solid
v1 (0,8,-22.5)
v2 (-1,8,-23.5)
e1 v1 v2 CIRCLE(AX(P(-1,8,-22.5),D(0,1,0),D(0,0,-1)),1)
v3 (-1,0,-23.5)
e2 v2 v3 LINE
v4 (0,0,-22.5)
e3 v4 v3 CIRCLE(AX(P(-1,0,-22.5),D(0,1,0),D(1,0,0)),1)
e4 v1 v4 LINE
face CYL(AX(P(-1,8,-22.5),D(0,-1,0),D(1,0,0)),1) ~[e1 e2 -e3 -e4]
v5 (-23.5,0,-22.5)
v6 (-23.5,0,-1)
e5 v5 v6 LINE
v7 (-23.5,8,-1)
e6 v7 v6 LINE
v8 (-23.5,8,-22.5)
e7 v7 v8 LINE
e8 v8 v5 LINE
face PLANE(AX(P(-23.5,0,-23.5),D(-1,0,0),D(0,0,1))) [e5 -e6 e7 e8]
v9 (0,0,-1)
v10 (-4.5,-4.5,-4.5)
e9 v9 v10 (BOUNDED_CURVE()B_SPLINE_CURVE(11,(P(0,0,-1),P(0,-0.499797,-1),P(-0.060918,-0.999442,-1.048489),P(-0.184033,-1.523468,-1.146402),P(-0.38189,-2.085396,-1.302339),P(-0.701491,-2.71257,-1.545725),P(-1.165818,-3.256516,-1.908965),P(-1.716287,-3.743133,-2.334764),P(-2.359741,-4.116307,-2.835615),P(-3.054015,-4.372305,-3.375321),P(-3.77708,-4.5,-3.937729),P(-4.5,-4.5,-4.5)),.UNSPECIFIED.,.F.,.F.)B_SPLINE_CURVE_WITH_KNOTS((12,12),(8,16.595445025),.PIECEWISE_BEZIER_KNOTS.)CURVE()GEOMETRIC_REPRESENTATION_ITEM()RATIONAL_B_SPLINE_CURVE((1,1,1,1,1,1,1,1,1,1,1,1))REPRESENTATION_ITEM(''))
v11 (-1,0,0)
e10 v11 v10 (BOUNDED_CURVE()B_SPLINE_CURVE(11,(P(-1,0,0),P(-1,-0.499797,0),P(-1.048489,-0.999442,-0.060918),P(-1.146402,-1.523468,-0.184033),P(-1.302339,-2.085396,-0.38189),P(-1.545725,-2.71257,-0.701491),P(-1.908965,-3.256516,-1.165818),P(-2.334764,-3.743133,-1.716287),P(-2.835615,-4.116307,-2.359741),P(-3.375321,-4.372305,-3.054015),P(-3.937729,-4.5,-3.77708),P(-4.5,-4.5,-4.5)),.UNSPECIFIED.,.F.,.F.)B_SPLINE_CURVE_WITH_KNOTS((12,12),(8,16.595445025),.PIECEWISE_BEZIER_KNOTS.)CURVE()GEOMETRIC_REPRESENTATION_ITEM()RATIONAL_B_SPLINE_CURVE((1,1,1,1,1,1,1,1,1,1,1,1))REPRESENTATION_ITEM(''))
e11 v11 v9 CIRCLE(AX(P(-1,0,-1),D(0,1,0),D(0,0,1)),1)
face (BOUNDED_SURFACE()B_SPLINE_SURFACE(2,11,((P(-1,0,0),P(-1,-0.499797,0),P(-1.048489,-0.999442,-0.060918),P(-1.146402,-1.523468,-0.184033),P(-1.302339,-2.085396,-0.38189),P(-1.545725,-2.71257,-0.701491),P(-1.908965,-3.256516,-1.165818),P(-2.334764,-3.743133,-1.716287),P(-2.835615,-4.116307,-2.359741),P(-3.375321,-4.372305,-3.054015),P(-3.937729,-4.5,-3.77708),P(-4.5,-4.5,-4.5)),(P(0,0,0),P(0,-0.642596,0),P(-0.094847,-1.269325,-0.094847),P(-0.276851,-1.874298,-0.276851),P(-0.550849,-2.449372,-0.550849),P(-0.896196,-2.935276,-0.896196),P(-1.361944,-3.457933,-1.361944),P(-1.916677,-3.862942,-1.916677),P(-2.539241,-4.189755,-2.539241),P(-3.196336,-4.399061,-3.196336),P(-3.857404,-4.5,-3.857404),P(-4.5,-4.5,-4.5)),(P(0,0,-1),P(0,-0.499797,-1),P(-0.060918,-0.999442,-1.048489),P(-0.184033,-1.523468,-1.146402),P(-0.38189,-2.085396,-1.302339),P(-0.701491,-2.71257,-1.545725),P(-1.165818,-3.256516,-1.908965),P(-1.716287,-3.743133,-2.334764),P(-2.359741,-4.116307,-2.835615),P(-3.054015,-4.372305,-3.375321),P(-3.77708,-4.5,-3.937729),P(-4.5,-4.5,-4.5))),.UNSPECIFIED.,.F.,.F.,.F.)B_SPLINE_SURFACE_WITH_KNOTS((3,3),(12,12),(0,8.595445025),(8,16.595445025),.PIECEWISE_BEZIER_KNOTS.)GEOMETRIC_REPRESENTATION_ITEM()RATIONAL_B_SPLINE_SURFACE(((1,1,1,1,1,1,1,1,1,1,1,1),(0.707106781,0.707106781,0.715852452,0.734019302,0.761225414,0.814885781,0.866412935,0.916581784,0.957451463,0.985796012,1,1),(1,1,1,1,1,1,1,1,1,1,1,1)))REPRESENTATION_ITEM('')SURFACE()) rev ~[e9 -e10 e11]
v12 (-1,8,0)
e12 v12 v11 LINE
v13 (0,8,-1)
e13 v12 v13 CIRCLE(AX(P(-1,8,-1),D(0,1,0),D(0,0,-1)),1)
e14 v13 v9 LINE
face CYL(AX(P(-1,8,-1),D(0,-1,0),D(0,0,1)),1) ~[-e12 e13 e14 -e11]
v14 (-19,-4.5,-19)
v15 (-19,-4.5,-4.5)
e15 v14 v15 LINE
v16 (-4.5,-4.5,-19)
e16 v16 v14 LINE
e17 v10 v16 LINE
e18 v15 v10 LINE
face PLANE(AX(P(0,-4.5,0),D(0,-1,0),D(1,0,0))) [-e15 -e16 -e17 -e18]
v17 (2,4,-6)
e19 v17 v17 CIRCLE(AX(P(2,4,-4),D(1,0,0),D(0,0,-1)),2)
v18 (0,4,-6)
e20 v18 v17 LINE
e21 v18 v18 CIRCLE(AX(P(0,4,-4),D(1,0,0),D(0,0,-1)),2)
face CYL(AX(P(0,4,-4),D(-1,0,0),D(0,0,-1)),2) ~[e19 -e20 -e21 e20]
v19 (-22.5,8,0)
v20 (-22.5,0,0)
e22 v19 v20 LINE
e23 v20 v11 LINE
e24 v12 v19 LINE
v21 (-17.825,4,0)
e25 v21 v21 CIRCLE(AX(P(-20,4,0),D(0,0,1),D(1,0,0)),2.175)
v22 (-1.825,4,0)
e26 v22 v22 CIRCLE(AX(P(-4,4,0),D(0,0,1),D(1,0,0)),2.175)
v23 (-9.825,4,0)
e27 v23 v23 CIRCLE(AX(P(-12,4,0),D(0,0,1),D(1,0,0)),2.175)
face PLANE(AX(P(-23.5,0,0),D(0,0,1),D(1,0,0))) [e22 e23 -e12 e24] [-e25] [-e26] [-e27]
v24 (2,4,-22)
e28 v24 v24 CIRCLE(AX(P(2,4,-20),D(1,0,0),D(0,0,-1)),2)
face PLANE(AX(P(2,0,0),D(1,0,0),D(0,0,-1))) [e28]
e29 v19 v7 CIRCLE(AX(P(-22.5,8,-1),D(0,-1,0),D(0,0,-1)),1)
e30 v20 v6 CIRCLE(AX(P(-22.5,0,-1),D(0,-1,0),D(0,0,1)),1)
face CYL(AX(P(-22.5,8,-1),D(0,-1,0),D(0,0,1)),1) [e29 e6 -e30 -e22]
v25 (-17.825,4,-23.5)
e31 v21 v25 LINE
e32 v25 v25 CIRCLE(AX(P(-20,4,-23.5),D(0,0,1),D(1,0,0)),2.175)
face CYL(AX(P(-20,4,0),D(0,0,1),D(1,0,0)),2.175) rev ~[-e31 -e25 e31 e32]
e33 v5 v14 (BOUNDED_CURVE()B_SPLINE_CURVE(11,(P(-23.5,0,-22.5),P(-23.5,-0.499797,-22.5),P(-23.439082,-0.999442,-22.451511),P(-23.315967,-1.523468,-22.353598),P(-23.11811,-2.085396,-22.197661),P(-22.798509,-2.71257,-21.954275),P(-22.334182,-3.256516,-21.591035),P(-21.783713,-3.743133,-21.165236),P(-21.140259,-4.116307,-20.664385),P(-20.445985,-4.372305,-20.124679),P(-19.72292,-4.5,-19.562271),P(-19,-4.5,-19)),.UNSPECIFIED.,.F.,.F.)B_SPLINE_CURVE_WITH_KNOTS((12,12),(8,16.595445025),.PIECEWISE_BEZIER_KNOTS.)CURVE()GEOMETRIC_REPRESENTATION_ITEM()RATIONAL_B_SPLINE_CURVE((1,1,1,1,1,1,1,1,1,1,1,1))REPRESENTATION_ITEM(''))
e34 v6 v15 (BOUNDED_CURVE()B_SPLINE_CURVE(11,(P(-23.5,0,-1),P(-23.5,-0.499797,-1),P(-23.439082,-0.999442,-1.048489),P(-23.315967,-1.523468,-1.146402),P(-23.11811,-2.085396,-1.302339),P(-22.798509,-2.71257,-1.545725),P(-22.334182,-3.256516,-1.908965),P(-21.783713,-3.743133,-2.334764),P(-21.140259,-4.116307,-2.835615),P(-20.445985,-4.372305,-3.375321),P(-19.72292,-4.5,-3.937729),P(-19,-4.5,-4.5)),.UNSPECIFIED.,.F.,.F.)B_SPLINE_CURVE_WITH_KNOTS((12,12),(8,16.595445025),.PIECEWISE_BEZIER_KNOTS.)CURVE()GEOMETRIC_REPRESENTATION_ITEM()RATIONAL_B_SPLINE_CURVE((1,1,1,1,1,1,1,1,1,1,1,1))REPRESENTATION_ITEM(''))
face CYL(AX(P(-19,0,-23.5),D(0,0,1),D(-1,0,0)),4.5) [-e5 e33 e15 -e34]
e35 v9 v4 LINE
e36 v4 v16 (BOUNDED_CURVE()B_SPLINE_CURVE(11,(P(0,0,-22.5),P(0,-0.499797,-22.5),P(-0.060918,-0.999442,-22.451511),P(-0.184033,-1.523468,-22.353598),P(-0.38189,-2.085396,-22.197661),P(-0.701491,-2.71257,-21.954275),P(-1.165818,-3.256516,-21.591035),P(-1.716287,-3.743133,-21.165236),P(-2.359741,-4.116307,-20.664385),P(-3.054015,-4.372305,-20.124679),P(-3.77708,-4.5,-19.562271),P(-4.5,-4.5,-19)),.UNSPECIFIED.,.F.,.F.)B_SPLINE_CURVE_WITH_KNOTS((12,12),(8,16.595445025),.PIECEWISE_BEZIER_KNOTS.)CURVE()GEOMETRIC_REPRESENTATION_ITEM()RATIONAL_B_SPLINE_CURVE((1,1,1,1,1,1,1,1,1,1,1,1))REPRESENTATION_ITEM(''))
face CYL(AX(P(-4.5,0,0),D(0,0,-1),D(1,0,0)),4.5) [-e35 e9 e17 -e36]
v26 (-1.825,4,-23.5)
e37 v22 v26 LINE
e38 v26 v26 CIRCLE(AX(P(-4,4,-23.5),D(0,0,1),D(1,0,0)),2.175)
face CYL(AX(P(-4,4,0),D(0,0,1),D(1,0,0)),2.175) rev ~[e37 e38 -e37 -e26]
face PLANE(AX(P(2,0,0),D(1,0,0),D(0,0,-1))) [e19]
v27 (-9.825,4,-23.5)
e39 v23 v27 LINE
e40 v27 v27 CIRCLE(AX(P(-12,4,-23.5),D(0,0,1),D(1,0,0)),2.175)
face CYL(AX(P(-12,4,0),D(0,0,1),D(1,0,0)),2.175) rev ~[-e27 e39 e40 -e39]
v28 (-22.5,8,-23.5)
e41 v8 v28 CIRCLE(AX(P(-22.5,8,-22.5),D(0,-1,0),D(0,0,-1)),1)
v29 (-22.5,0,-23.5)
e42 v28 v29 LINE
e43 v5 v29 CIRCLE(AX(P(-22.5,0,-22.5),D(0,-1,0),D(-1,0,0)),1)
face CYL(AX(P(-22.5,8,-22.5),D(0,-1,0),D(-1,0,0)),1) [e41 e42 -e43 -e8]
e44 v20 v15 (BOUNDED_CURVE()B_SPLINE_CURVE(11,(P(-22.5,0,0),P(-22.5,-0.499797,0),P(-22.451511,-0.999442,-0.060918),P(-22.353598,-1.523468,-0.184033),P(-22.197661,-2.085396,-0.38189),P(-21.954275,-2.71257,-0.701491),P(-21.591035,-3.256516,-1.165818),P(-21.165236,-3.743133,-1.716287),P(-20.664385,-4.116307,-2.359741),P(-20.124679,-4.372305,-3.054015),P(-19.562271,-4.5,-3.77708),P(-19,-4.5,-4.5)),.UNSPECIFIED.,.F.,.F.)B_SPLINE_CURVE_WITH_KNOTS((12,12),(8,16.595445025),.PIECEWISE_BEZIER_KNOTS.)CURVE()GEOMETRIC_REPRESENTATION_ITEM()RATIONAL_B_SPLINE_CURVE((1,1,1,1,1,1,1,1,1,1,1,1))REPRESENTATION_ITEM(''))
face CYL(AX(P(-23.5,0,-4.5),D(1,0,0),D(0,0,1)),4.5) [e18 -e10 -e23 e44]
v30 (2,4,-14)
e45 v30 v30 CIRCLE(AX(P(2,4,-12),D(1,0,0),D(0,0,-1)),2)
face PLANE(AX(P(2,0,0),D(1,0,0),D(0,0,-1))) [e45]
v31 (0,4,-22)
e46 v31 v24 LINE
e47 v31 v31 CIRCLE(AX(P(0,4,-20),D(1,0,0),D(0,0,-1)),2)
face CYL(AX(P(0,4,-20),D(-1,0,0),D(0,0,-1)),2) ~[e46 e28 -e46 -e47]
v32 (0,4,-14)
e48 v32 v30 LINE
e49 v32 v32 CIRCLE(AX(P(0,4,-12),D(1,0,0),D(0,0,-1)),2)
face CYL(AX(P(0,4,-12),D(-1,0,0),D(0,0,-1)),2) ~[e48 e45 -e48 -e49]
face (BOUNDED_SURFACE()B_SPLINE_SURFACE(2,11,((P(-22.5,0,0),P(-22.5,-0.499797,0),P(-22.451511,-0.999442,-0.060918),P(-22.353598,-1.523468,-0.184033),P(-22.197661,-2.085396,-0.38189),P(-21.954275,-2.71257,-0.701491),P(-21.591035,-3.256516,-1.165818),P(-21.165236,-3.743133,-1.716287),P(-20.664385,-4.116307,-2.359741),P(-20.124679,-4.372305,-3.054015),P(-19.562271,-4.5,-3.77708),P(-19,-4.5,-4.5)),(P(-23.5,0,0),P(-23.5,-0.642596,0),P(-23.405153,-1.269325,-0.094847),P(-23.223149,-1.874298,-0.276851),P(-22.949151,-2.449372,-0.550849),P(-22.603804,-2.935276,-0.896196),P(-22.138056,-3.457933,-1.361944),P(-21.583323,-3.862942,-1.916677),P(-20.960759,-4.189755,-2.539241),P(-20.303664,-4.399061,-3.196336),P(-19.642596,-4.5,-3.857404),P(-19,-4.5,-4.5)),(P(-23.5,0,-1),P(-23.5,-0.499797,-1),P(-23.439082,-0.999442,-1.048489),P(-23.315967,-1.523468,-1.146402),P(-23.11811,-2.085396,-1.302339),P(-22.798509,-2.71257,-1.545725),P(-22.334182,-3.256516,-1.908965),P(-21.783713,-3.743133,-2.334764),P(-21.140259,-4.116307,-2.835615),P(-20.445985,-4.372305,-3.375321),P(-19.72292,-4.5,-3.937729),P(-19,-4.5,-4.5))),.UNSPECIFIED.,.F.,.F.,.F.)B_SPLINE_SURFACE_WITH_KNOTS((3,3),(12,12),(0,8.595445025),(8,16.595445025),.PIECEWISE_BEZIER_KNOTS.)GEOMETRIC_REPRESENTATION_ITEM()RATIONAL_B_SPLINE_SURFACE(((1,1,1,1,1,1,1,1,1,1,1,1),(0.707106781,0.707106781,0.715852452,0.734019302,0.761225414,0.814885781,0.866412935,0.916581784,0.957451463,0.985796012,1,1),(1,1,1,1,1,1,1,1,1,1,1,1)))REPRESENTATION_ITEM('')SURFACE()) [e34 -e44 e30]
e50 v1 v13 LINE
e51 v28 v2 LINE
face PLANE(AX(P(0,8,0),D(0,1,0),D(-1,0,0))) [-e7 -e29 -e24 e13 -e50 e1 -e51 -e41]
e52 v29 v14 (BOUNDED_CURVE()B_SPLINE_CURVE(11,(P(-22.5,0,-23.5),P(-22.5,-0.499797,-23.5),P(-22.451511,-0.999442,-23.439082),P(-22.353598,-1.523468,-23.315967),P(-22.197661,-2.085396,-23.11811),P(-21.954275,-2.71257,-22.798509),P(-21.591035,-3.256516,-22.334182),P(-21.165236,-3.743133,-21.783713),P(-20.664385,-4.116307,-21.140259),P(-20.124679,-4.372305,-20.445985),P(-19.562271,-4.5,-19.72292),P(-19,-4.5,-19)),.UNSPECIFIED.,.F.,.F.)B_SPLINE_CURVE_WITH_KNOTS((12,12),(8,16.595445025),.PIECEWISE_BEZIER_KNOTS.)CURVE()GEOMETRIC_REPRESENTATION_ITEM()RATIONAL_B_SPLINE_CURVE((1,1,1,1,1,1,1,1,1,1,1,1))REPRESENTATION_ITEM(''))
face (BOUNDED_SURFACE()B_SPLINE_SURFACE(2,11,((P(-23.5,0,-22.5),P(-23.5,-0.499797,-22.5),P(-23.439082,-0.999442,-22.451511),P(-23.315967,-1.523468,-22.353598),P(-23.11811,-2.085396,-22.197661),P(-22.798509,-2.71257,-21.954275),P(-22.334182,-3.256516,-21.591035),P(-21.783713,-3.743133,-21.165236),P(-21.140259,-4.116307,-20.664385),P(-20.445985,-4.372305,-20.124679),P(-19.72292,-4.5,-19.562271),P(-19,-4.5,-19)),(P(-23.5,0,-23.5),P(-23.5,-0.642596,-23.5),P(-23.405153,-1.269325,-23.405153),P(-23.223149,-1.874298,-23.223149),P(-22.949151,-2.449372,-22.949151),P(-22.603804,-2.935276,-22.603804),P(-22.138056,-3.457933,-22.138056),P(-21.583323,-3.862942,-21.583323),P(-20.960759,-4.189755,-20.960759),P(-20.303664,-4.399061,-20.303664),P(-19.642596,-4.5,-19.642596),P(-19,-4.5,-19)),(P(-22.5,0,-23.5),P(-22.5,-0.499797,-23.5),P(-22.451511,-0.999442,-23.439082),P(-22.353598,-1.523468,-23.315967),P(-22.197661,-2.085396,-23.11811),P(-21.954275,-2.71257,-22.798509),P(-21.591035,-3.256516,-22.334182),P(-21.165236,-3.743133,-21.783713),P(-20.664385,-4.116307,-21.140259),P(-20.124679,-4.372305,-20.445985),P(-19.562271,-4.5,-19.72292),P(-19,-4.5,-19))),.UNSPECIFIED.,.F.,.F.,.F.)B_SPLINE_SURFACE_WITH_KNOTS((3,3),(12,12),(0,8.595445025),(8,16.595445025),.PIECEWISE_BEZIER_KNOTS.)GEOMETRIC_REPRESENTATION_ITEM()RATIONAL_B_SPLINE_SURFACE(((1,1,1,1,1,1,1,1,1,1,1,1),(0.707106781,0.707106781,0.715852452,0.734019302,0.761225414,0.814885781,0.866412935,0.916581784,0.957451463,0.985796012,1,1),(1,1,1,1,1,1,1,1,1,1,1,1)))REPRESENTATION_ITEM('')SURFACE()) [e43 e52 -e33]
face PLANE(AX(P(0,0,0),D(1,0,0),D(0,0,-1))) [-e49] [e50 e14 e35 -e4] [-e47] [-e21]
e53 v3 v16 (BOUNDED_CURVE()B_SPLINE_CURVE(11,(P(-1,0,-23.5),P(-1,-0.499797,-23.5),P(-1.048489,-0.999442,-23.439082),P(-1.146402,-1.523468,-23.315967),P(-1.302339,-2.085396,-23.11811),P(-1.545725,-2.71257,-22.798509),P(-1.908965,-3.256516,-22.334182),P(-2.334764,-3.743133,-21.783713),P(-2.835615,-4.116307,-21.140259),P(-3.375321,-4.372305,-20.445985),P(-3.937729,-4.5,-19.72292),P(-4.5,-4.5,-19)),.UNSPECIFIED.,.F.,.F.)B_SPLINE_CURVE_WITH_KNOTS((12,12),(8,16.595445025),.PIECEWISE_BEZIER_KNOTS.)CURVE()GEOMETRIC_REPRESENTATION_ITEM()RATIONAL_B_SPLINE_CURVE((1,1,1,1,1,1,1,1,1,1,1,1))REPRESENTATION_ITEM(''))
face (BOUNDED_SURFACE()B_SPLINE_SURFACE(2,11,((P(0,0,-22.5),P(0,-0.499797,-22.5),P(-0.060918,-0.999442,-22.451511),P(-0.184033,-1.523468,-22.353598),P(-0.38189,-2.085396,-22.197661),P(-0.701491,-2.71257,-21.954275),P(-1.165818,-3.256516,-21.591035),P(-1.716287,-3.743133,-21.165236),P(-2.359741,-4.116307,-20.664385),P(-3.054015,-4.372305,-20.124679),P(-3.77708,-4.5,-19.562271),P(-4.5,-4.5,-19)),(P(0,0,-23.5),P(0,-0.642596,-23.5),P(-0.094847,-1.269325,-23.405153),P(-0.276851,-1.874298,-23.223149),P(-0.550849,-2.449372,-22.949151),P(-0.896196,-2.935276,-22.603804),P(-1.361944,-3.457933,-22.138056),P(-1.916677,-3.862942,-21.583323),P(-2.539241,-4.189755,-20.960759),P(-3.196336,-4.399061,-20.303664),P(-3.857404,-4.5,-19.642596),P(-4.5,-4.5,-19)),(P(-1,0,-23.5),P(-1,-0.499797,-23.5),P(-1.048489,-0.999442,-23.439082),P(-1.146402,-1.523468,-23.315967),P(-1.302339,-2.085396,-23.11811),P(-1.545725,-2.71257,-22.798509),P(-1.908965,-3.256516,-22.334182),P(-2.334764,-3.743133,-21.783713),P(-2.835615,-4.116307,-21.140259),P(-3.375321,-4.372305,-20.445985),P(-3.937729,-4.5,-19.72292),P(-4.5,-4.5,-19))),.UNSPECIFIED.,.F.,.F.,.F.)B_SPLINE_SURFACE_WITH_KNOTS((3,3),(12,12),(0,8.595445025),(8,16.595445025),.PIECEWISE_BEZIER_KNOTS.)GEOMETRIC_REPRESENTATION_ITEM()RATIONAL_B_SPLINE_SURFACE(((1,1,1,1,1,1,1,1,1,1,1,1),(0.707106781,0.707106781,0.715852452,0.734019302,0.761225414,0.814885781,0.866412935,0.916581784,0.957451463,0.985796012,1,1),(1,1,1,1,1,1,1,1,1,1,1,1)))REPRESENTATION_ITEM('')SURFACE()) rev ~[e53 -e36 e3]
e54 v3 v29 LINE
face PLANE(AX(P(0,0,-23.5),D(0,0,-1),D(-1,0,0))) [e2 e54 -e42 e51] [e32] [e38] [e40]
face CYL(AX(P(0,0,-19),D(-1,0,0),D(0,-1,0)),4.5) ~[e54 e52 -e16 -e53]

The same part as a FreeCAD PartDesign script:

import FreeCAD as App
import Part
import Sketcher
from FreeCAD import Vector


def edges_at(feature, points):
    """Names of the edges that pass closest to the given points."""
    edges = feature.Shape.Edges
    near = lambda p: min(range(len(edges)), key=lambda i: edges[i].distToShape(Part.Vertex(*p))[0])
    return sorted({f"Edge{near(p) + 1}" for p in points})


def add_polygon(sketch, points):
    """Adds a closed chain of lines whose ends are joined by coincident constraints."""
    first, n = sketch.GeometryCount, len(points)
    for a, b in zip(points, points[1:] + points[:1]):
        sketch.addGeometry(Part.LineSegment(App.Vector(*a, 0), App.Vector(*b, 0)), False)
    for i in range(n):
        sketch.addConstraint(Sketcher.Constraint("Coincident", first + i, 2, first + (i + 1) % n, 1))

doc = App.newDocument("Part")
body = doc.addObject("PartDesign::Body", "Body")

# Sketch on XZ plane
sketch1 = body.newObject("Sketcher::SketchObject", "Sketch")
sketch1.AttachmentSupport = (doc.getObject("XZ_Plane"), [""])
sketch1.MapMode = "FlatFace"
add_polygon(sketch1, [(-23.5, 0), (0, 0), (0, -23.5), (-23.5, -23.5)])  # lines 0-3
sketch1.addConstraint(Sketcher.Constraint("Horizontal", 0))
sketch1.addConstraint(Sketcher.Constraint("Vertical", 1))
sketch1.addConstraint(Sketcher.Constraint("Horizontal", 2))
sketch1.addConstraint(Sketcher.Constraint("Vertical", 3))
sketch1.addConstraint(Sketcher.Constraint("Coincident", 0, 2, -1, 1))
sketch1.addConstraint(Sketcher.Constraint("Equal", 2, 1))
sketch1.addConstraint(Sketcher.Constraint("DistanceX", 0, 1, 0, 2, 23.5))
pad1 = body.newObject("PartDesign::Pad", "Pad")
pad1.Profile = sketch1
pad1.Length = 8
pad1.Reversed = True

# Sketch on YZ plane
sketch2 = body.newObject("Sketcher::SketchObject", "Sketch001")
sketch2.AttachmentSupport = (doc.getObject("YZ_Plane"), [""])
sketch2.MapMode = "FlatFace"
sketch2.addGeometry(Part.Circle(Vector(4, -4, 0), Vector(0, 0, 1), 2), False)
sketch2.addGeometry(Part.Circle(Vector(4, -12, 0), Vector(0, 0, 1), 2), False)
sketch2.addGeometry(Part.Circle(Vector(4, -20, 0), Vector(0, 0, 1), 2), False)
sketch2.addConstraint(Sketcher.Constraint("Equal", 0, 1))
sketch2.addConstraint(Sketcher.Constraint("Equal", 1, 2))
sketch2.addConstraint(Sketcher.Constraint("Vertical", 0, 3, 1, 3))
sketch2.addConstraint(Sketcher.Constraint("Vertical", 1, 3, 2, 3))
sketch2.addConstraint(Sketcher.Constraint("Diameter", 0, 4.0))
sketch2.addConstraint(Sketcher.Constraint("DistanceX", -1, 1, 0, 3, 4.0))
sketch2.addConstraint(Sketcher.Constraint("DistanceY", 0, 3, -1, 1, 4.0))
sketch2.addConstraint(Sketcher.Constraint("DistanceY", 1, 3, 0, 3, 8.0))
sketch2.addConstraint(Sketcher.Constraint("DistanceY", 2, 3, 1, 3, 8.0))
pad2 = body.newObject("PartDesign::Pad", "Pad001")
pad2.Profile = sketch2
pad2.Length = 2

# Sketch on XY plane
sketch3 = body.newObject("Sketcher::SketchObject", "Sketch002")
sketch3.AttachmentSupport = (doc.getObject("XY_Plane"), [""])
sketch3.MapMode = "FlatFace"
sketch3.addGeometry(Part.Circle(Vector(-4, 4, 0), Vector(0, 0, 1), 2.175), False)
sketch3.addGeometry(Part.Circle(Vector(-12, 4, 0), Vector(0, 0, 1), 2.175), False)
sketch3.addGeometry(Part.Circle(Vector(-20, 4, 0), Vector(0, 0, 1), 2.175), False)
sketch3.addConstraint(Sketcher.Constraint("Equal", 0, 1))
sketch3.addConstraint(Sketcher.Constraint("Equal", 1, 2))
sketch3.addConstraint(Sketcher.Constraint("Horizontal", 0, 3, 1, 3))
sketch3.addConstraint(Sketcher.Constraint("Horizontal", 1, 3, 2, 3))
sketch3.addConstraint(Sketcher.Constraint("Diameter", 0, 4.35))
sketch3.addConstraint(Sketcher.Constraint("DistanceX", 0, 3, -1, 1, 4.0))
sketch3.addConstraint(Sketcher.Constraint("DistanceY", -1, 1, 0, 3, 4.0))
sketch3.addConstraint(Sketcher.Constraint("DistanceX", 1, 3, 0, 3, 8.0))
sketch3.addConstraint(Sketcher.Constraint("DistanceX", 2, 3, 1, 3, 8.0))
pocket1 = body.newObject("PartDesign::Pocket", "Pocket")
pocket1.Profile = sketch3
pocket1.Length = 27

# Sketch on XZ plane
sketch4 = body.newObject("Sketcher::SketchObject", "Sketch003")
sketch4.AttachmentSupport = (doc.getObject("XZ_Plane"), [""])
sketch4.MapMode = "FlatFace"
add_polygon(sketch4, [(0, 0), (-23.5, 0), (-23.5, -23.5), (0, -23.5)])  # lines 0-3
sketch4.addConstraint(Sketcher.Constraint("Horizontal", 0))
sketch4.addConstraint(Sketcher.Constraint("Vertical", 1))
sketch4.addConstraint(Sketcher.Constraint("Horizontal", 2))
sketch4.addConstraint(Sketcher.Constraint("Vertical", 3))
sketch4.addConstraint(Sketcher.Constraint("Coincident", 3, 2, -1, 1))
sketch4.addConstraint(Sketcher.Constraint("Equal", 2, 1))
sketch4.addConstraint(Sketcher.Constraint("DistanceX", 0, 2, 0, 1, 23.5))
pad3 = body.newObject("PartDesign::Pad", "Pad002")
pad3.Profile = sketch4
pad3.Length = 4.5
doc.recompute()

fillet = body.newObject("PartDesign::Fillet", "Fillet")
fillet.Base = (pad3, edges_at(pad3, [
    (-11.75, -4.5, 0),
    (0, -4.5, -11.75),
    (-11.75, -4.5, -23.5),
    (-23.5, -4.5, -11.75),
]))
fillet.Radius = 4.5
doc.recompute()

fillet2 = body.newObject("PartDesign::Fillet", "Fillet001")
fillet2.Base = (fillet, edges_at(fillet, [
    (-1.318, -3.182, -1.318),
    (0, 4, 0),
    (-1.318, -3.182, -22.182),
    (0, 4, -23.5),
    (-23.5, 4, -23.5),
    (-22.182, -3.182, -22.182),
    (-23.5, 4, 0),
    (-22.182, -3.182, -1.318),
]))
fillet2.Radius = 1

doc.recompute()
